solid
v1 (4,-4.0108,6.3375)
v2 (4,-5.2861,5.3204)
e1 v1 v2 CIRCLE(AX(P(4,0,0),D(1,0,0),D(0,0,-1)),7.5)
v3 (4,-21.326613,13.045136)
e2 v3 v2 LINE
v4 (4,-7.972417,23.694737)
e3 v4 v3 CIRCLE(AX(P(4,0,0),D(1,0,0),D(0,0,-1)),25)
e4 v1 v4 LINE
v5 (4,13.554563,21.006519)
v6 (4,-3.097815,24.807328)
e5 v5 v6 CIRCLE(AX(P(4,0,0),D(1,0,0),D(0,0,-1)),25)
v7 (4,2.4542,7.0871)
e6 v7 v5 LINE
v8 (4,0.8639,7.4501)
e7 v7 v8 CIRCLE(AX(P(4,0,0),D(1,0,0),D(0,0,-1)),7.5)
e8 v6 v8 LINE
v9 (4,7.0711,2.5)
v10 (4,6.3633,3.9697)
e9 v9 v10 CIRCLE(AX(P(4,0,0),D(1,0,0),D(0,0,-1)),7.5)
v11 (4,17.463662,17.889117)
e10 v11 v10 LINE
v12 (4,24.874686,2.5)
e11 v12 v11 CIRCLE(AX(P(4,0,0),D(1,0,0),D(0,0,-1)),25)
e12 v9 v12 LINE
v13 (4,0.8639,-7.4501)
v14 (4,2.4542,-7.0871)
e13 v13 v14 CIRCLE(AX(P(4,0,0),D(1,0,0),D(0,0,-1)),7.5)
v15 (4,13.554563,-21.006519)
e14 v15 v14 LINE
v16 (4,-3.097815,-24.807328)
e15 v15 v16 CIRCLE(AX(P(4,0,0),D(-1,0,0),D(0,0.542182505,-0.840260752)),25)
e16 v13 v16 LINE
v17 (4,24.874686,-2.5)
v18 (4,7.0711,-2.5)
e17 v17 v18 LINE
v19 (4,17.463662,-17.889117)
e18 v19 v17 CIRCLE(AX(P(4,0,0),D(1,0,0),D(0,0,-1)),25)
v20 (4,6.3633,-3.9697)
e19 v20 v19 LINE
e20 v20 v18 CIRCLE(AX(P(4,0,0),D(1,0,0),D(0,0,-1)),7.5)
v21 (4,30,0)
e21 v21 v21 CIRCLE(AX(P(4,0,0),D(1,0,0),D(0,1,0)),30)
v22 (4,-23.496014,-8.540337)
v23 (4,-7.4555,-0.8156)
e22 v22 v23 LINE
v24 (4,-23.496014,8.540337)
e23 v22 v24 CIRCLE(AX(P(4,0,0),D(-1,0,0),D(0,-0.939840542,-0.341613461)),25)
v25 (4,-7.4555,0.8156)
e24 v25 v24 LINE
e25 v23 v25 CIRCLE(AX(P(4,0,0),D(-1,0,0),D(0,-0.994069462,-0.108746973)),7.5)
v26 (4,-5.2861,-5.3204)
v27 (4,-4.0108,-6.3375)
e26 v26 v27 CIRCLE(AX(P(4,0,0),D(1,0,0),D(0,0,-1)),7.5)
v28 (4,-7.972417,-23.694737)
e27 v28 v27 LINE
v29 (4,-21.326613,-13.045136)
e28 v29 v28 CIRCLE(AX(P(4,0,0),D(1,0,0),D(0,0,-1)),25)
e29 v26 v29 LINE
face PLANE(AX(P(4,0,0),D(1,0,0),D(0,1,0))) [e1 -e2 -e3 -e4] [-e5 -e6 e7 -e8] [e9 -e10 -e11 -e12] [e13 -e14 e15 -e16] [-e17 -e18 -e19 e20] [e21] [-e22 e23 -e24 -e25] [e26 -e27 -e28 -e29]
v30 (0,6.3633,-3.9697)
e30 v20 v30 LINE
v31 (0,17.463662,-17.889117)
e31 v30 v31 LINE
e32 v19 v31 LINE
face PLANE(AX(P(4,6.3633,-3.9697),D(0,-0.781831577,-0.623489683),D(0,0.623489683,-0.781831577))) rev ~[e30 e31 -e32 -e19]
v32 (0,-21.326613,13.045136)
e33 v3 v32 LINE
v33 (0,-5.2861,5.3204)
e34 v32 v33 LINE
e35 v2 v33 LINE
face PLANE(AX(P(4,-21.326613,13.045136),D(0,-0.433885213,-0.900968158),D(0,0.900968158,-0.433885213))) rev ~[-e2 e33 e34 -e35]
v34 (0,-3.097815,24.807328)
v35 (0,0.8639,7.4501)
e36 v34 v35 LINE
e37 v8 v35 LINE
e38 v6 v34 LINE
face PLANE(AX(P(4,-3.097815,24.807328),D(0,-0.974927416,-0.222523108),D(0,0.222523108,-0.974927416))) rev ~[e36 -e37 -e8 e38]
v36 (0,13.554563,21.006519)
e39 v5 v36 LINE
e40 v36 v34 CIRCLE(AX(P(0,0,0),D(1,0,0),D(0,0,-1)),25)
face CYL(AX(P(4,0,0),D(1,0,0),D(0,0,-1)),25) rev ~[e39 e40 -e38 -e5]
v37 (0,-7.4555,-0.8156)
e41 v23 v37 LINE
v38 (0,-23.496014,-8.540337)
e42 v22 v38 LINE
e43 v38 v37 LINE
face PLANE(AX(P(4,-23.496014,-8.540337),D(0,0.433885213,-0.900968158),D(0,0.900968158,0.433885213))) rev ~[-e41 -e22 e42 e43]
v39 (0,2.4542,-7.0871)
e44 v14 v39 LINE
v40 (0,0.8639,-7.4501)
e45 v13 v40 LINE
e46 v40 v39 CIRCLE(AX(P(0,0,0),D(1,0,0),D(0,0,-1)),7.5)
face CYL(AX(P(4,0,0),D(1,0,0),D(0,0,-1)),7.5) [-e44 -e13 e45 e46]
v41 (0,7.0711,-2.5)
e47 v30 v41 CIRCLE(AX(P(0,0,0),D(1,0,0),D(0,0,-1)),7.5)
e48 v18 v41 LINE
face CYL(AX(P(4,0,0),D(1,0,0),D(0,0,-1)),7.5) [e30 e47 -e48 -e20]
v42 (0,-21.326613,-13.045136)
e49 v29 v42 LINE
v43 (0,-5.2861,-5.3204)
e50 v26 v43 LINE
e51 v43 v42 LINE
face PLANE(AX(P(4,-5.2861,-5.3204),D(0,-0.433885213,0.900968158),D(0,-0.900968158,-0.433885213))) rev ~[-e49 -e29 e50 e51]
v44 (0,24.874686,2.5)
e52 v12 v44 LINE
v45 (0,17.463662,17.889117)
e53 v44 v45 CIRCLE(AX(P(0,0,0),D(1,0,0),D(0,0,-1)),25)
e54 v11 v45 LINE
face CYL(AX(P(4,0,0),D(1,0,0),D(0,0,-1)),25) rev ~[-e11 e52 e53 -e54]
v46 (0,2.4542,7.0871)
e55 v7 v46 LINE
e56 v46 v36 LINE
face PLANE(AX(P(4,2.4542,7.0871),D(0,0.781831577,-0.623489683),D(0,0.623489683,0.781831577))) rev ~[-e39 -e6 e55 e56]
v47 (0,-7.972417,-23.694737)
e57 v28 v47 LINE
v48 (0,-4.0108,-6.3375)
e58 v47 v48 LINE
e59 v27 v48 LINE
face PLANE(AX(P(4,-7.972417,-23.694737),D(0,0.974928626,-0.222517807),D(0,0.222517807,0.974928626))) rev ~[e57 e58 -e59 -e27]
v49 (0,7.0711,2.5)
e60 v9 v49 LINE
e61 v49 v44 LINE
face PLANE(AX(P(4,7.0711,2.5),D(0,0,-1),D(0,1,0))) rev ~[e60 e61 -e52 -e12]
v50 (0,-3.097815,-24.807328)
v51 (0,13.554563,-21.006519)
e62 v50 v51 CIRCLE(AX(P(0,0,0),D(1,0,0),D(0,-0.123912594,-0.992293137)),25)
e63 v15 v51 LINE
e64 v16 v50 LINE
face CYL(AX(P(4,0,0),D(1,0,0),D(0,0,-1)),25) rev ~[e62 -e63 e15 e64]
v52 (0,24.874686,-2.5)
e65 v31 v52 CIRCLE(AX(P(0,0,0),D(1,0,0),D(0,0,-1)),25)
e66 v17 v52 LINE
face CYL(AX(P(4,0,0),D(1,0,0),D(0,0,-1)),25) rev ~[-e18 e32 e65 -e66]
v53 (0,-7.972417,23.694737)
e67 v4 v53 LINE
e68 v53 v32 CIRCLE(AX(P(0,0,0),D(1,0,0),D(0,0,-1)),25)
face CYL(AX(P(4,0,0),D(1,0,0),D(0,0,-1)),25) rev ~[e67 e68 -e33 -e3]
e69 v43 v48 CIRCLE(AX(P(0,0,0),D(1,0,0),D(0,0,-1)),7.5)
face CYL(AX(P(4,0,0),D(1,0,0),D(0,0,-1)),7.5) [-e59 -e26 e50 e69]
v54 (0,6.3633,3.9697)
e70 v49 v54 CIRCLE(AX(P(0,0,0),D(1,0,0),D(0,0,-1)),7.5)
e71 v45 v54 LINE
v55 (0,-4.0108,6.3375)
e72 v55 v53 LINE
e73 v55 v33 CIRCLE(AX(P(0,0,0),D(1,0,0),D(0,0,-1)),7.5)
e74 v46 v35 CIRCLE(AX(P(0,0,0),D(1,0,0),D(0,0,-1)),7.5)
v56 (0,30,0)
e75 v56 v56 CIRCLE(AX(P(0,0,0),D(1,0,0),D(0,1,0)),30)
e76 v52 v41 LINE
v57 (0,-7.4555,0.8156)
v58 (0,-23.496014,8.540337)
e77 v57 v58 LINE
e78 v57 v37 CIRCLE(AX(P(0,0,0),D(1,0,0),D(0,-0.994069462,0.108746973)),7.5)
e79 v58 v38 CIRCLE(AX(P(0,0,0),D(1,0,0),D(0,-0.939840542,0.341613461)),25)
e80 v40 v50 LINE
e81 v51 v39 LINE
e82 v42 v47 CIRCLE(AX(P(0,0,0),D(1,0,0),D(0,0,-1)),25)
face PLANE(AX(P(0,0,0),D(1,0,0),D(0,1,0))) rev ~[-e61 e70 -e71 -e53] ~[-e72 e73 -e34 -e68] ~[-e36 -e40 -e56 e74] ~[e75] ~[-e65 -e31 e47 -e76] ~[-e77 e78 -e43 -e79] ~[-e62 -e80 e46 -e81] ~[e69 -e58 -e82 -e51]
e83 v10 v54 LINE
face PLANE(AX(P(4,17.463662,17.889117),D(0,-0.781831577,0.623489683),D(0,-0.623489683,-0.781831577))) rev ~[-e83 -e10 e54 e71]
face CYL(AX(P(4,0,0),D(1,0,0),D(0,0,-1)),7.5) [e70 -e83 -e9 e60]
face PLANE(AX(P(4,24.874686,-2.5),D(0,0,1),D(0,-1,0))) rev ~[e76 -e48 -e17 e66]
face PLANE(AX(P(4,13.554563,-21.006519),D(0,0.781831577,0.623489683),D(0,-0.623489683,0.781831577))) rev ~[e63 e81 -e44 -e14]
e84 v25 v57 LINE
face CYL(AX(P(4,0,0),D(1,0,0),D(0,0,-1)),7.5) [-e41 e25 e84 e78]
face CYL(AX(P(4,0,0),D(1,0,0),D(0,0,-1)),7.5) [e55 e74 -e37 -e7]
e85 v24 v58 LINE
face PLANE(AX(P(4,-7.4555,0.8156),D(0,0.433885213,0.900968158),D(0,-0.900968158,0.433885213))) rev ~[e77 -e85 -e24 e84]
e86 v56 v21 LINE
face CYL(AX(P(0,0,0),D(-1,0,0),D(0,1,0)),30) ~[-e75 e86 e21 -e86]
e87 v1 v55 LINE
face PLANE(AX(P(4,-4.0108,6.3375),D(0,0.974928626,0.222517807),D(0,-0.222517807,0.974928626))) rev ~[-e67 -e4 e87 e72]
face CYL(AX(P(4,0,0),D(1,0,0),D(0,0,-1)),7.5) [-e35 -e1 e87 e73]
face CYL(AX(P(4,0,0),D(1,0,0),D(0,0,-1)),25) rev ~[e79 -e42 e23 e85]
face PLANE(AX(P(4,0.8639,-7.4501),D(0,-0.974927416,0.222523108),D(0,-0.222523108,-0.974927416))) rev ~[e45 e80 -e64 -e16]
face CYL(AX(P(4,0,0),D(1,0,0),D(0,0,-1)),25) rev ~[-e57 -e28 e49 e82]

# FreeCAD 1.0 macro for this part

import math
import FreeCAD as App
import Part
import Sketcher
from FreeCAD import Vector
Q = App.Units.Quantity

doc = App.newDocument("Part")
params = doc.addObject("Spreadsheet::Sheet", "Params")
for row, (alias, value) in enumerate([
    ("sketch1_diameter", "60 mm"),
    ("pad1_length", "4 mm"),
    ("sketch2_radius", "7.5 mm"),
    ("sketch2_radius2", "25 mm"),
    ("pocket1_length", "4 mm"),
], start=1):
    params.set(f"A{row}", alias)
    params.set(f"B{row}", "=" + value)
    params.setAlias(f"B{row}", alias)

body = doc.addObject("PartDesign::Body", "Body")

# Sketch on YZ plane
sketch1 = body.newObject("Sketcher::SketchObject", "Sketch")
sketch1.AttachmentSupport = (doc.getObject("YZ_Plane"), [""])
sketch1.MapMode = "FlatFace"
sketch1.addGeometry(Part.Circle(Vector(0, 0, 0), Vector(0, 0, 1), 30), False)
sketch1.addConstraint([
    Sketcher.Constraint("Coincident", 0, 3, -1, 1),
    Sketcher.Constraint("Diameter", 0, Q("60 mm")),
])
sketch1.setExpression("Constraints[1]", "Params.sketch1_diameter")
pad1 = body.newObject("PartDesign::Pad", "Pad")
pad1.Profile = sketch1
pad1.setExpression("Length", "Params.pad1_length")

# Sketch on YZ plane
sketch2 = body.newObject("Sketcher::SketchObject", "Sketch001")
sketch2.AttachmentSupport = (doc.getObject("YZ_Plane"), [""])
sketch2.MapMode = "FlatFace"
sketch2.AttachmentOffset = App.Placement(Vector(0, 0, 4), App.Rotation())
sketch2.addGeometry([
    Part.ArcOfCircle(Part.Circle(Vector(0, 0, 0), Vector(0, 0, 1), 25), math.radians(160), math.radians(200)),  # 0
    Part.LineSegment(Vector(-23.5, -8.5, 0), Vector(-7.5, -0.8, 0)),  # 1
    Part.ArcOfCircle(Part.Circle(Vector(0, 0, 0), Vector(0, 0, 1), 7.5), math.radians(173.76), math.radians(186.24)),  # 2
    Part.LineSegment(Vector(-7.5, 0.8, 0), Vector(-23.5, 8.5, 0)),  # 3
    Part.ArcOfCircle(Part.Circle(Vector(0, 0, 0), Vector(0, 0, 1), 25), math.radians(-46), math.radians(-6)),  # 4
    Part.LineSegment(Vector(24.9, -2.5, 0), Vector(7.1, -2.5, 0)),  # 5
    Part.ArcOfCircle(Part.Circle(Vector(0, 0, 0), Vector(0, 0, 1), 7.5), math.radians(-31.96), math.radians(-19.47)),  # 6
    Part.LineSegment(Vector(6.4, -4, 0), Vector(17.5, -17.9, 0)),  # 7
    Part.LineSegment(Vector(7.1, 2.5, 0), Vector(24.9, 2.5, 0)),  # 8
    Part.ArcOfCircle(Part.Circle(Vector(0, 0, 0), Vector(0, 0, 1), 25), math.radians(6), math.radians(46)),  # 9
    Part.LineSegment(Vector(17.5, 17.9, 0), Vector(6.4, 4, 0)),  # 10
    Part.ArcOfCircle(Part.Circle(Vector(0, 0, 0), Vector(0, 0, 1), 7.5), math.radians(19.47), math.radians(31.96)),  # 11
    Part.LineSegment(Vector(-21.3, 13, 0), Vector(-5.3, 5.3, 0)),  # 12
    Part.ArcOfCircle(Part.Circle(Vector(0, 0, 0), Vector(0, 0, 1), 7.5), math.radians(122.33), math.radians(134.81)),  # 13
    Part.LineSegment(Vector(-4, 6.3, 0), Vector(-8, 23.7, 0)),  # 14
    Part.ArcOfCircle(Part.Circle(Vector(0, 0, 0), Vector(0, 0, 1), 25), math.radians(109), math.radians(149)),  # 15
    Part.ArcOfCircle(Part.Circle(Vector(0, 0, 0), Vector(0, 0, 1), 7.5), math.radians(-134.81), math.radians(-122.33)),  # 16
    Part.LineSegment(Vector(-5.3, -5.3, 0), Vector(-21.3, -13, 0)),  # 17
    Part.ArcOfCircle(Part.Circle(Vector(0, 0, 0), Vector(0, 0, 1), 25), math.radians(-149), math.radians(-109)),  # 18
    Part.LineSegment(Vector(-8, -23.7, 0), Vector(-4, -6.3, 0)),  # 19
    Part.LineSegment(Vector(13.6, -21, 0), Vector(2.5, -7.1, 0)),  # 20
    Part.ArcOfCircle(Part.Circle(Vector(0, 0, 0), Vector(0, 0, 1), 7.5), math.radians(-83.39), math.radians(-70.9)),  # 21
    Part.LineSegment(Vector(0.9, -7.5, 0), Vector(-3.1, -24.8, 0)),  # 22
    Part.ArcOfCircle(Part.Circle(Vector(0, 0, 0), Vector(0, 0, 1), 25), math.radians(-97), math.radians(-57)),  # 23
    Part.ArcOfCircle(Part.Circle(Vector(0, 0, 0), Vector(0, 0, 1), 7.5), math.radians(70.9), math.radians(83.39)),  # 24
    Part.LineSegment(Vector(2.5, 7.1, 0), Vector(13.6, 21, 0)),  # 25
    Part.ArcOfCircle(Part.Circle(Vector(0, 0, 0), Vector(0, 0, 1), 25), math.radians(57), math.radians(97)),  # 26
    Part.LineSegment(Vector(-3.1, 24.8, 0), Vector(0.9, 7.5, 0)),  # 27
], False)
sketch2.addConstraint([
    Sketcher.Constraint("Coincident", 0, 2, 1, 1),
    Sketcher.Constraint("Coincident", 1, 2, 2, 2),
    Sketcher.Constraint("Coincident", 2, 1, 3, 1),
    Sketcher.Constraint("Coincident", 3, 2, 0, 1),
    Sketcher.Constraint("Coincident", 4, 2, 5, 1),
    Sketcher.Constraint("Coincident", 5, 2, 6, 2),
    Sketcher.Constraint("Coincident", 6, 1, 7, 1),
    Sketcher.Constraint("Coincident", 7, 2, 4, 1),
    Sketcher.Constraint("Coincident", 8, 2, 9, 1),
    Sketcher.Constraint("Coincident", 9, 2, 10, 1),
    Sketcher.Constraint("Coincident", 10, 2, 11, 2),
    Sketcher.Constraint("Coincident", 11, 1, 8, 1),
    Sketcher.Constraint("Coincident", 12, 2, 13, 2),
    Sketcher.Constraint("Coincident", 13, 1, 14, 1),
    Sketcher.Constraint("Coincident", 14, 2, 15, 1),
    Sketcher.Constraint("Coincident", 15, 2, 12, 1),
    Sketcher.Constraint("Coincident", 16, 1, 17, 1),
    Sketcher.Constraint("Coincident", 17, 2, 18, 1),
    Sketcher.Constraint("Coincident", 18, 2, 19, 1),
    Sketcher.Constraint("Coincident", 19, 2, 16, 2),
    Sketcher.Constraint("Coincident", 20, 2, 21, 2),
    Sketcher.Constraint("Coincident", 21, 1, 22, 1),
    Sketcher.Constraint("Coincident", 22, 2, 23, 1),
    Sketcher.Constraint("Coincident", 23, 2, 20, 1),
    Sketcher.Constraint("Coincident", 24, 1, 25, 1),
    Sketcher.Constraint("Coincident", 25, 2, 26, 1),
    Sketcher.Constraint("Coincident", 26, 2, 27, 1),
    Sketcher.Constraint("Coincident", 27, 2, 24, 2),
    Sketcher.Constraint("Horizontal", 5),
    Sketcher.Constraint("Horizontal", 8),
    Sketcher.Constraint("Coincident", 0, 3, -1, 1),
    Sketcher.Constraint("Coincident", 2, 3, -1, 1),
    Sketcher.Constraint("Coincident", 4, 3, -1, 1),
    Sketcher.Constraint("Coincident", 6, 3, -1, 1),
    Sketcher.Constraint("Coincident", 9, 3, -1, 1),
    Sketcher.Constraint("Coincident", 11, 3, -1, 1),
    Sketcher.Constraint("Coincident", 13, 3, -1, 1),
    Sketcher.Constraint("Coincident", 15, 3, -1, 1),
    Sketcher.Constraint("Coincident", 16, 3, -1, 1),
    Sketcher.Constraint("Coincident", 18, 3, -1, 1),
    Sketcher.Constraint("Coincident", 21, 3, -1, 1),
    Sketcher.Constraint("Coincident", 23, 3, -1, 1),
    Sketcher.Constraint("Coincident", 24, 3, -1, 1),
    Sketcher.Constraint("Coincident", 26, 3, -1, 1),
    Sketcher.Constraint("Equal", 0, 4),
    Sketcher.Constraint("Equal", 2, 6),
    Sketcher.Constraint("Equal", 4, 9),
    Sketcher.Constraint("Equal", 6, 11),
    Sketcher.Constraint("Equal", 11, 13),
    Sketcher.Constraint("Equal", 9, 15),
    Sketcher.Constraint("Equal", 13, 16),
    Sketcher.Constraint("Equal", 15, 18),
    Sketcher.Constraint("Equal", 16, 21),
    Sketcher.Constraint("Equal", 18, 23),
    Sketcher.Constraint("Equal", 21, 24),
    Sketcher.Constraint("Equal", 23, 26),
    Sketcher.Constraint("Parallel", 3, 12),
    Sketcher.Constraint("Parallel", 1, 17),
    Sketcher.Constraint("Parallel", 7, 20),
    Sketcher.Constraint("Parallel", 19, 22),
    Sketcher.Constraint("Parallel", 10, 25),
    Sketcher.Constraint("Parallel", 14, 27),
    Sketcher.Constraint("Vertical", 1, 2, 2, 1),
    Sketcher.Constraint("Vertical", 0, 2, 3, 2),
    Sketcher.Constraint("Vertical", 4, 2, 8, 2),
    Sketcher.Constraint("Vertical", 7, 2, 9, 2),
    Sketcher.Constraint("Vertical", 6, 1, 10, 2),
    Sketcher.Constraint("Vertical", 12, 2, 16, 1),
    Sketcher.Constraint("Vertical", 14, 2, 18, 2),
    Sketcher.Constraint("Vertical", 13, 1, 19, 2),
    Sketcher.Constraint("Vertical", 20, 2, 24, 1),
    Sketcher.Constraint("Vertical", 22, 2, 26, 2),
    Sketcher.Constraint("Equal", 3, 7),
    Sketcher.Constraint("Equal", 10, 12),
    Sketcher.Constraint("Equal", 12, 14),
    Sketcher.Constraint("Equal", 19, 20),
    Sketcher.Constraint("Equal", 20, 22),
    Sketcher.Constraint("Radius", 2, Q("7.5 mm")),
    Sketcher.Constraint("Radius", 0, Q("25 mm")),
    Sketcher.Constraint("DistanceY", 4, 2, 8, 2, Q("5 mm")),
    Sketcher.Constraint("DistanceY", 21, 1, -1, 1, Q("7.45 mm")),
    Sketcher.Constraint("DistanceX", 16, 1, 21, 1, Q("6.15 mm")),
    Sketcher.Constraint("DistanceX", 0, 2, -1, 1, Q("23.496 mm")),
    Sketcher.Constraint("DistanceY", 7, 2, -1, 1, Q("17.889 mm")),
])
sketch2.setExpression("Constraints[77]", "Params.sketch2_radius")
sketch2.setExpression("Constraints[78]", "Params.sketch2_radius2")
pocket1 = body.newObject("PartDesign::Pocket", "Pocket")
pocket1.Profile = sketch2
pocket1.setExpression("Length", "Params.pocket1_length")

doc.recompute()
